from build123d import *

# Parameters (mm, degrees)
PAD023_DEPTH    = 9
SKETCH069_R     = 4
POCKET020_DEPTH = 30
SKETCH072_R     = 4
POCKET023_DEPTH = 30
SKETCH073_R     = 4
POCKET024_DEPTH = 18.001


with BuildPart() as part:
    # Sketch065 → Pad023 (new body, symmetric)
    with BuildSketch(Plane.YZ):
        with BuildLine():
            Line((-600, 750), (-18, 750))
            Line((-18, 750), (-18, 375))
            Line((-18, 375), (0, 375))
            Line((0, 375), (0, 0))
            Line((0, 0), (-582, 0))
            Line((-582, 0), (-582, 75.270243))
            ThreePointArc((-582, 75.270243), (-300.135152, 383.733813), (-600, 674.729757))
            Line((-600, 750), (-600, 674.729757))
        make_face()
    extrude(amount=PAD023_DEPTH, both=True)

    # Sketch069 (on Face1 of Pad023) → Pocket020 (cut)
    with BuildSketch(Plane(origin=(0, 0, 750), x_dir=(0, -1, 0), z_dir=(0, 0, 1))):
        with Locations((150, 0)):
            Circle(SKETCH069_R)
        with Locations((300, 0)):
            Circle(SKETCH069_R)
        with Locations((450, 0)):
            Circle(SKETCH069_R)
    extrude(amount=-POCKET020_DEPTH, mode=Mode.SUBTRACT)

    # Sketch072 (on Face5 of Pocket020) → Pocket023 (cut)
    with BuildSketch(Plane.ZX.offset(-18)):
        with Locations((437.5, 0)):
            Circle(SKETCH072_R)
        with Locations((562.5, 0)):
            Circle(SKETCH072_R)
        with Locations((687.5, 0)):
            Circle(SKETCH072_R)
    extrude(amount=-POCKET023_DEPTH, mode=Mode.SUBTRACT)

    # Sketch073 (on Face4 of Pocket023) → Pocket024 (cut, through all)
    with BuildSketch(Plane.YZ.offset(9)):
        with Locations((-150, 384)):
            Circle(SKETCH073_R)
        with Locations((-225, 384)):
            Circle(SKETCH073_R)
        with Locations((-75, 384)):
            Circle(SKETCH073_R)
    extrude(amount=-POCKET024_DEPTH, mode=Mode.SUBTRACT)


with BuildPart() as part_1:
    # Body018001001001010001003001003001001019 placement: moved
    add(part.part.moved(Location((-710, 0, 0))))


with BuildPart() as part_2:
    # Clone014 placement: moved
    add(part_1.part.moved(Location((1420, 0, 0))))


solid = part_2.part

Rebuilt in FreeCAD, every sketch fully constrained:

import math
import FreeCAD as App
import Part
import Sketcher
from FreeCAD import Vector
Q = App.Units.Quantity

doc = App.newDocument("Part")
params = doc.addObject("Spreadsheet::Sheet", "Params")
for row, (alias, value) in enumerate([
    ("sketch1_radius", "300 mm"),
    ("sketch1_width", "582 mm"),
    ("sketch1_width2", "18 mm"),
    ("sketch1_height", "375 mm"),
    ("pad1_length", "18 mm"),
    ("sketch2_diameter", "8 mm"),
    ("pocket1_length", "30 mm"),
    ("sketch3_diameter", "8 mm"),
    ("pocket2_length", "30 mm"),
    ("sketch4_diameter", "8 mm"),
], start=1):
    params.set(f"A{row}", alias)
    params.set(f"B{row}", "=" + value)
    params.setAlias(f"B{row}", alias)

body = doc.addObject("PartDesign::Body", "Body")

# Sketch on YZ plane
sketch1 = body.newObject("Sketcher::SketchObject", "Sketch")
sketch1.AttachmentSupport = (doc.getObject("YZ_Plane"), [""])
sketch1.MapMode = "FlatFace"
sketch1.addGeometry(Part.LineSegment(Vector(-18, 750, 0), Vector(-600, 750, 0)), False)
sketch1.addGeometry(Part.LineSegment(Vector(-600, 750, 0), Vector(-600, 674.729757, 0)), False)
sketch1.addGeometry(Part.ArcOfCircle(Part.Circle(Vector(-600, 374.729757, 0), Vector(0, 0, 1), 300), math.radians(-86.560187), math.radians(90)), False)
sketch1.addGeometry(Part.LineSegment(Vector(-582, 75.270243, 0), Vector(-582, 0, 0)), False)
sketch1.addGeometry(Part.LineSegment(Vector(-582, 0, 0), Vector(0, 0, 0)), False)
sketch1.addGeometry(Part.LineSegment(Vector(0, 0, 0), Vector(0, 375, 0)), False)
sketch1.addGeometry(Part.LineSegment(Vector(0, 375, 0), Vector(-18, 375, 0)), False)
sketch1.addGeometry(Part.LineSegment(Vector(-18, 375, 0), Vector(-18, 750, 0)), False)
sketch1.addConstraint(Sketcher.Constraint("Coincident", 0, 2, 1, 1))
sketch1.addConstraint(Sketcher.Constraint("Coincident", 1, 2, 2, 2))
sketch1.addConstraint(Sketcher.Constraint("Coincident", 2, 1, 3, 1))
sketch1.addConstraint(Sketcher.Constraint("Coincident", 3, 2, 4, 1))
sketch1.addConstraint(Sketcher.Constraint("Coincident", 4, 2, 5, 1))
sketch1.addConstraint(Sketcher.Constraint("Coincident", 5, 2, 6, 1))
sketch1.addConstraint(Sketcher.Constraint("Coincident", 6, 2, 7, 1))
sketch1.addConstraint(Sketcher.Constraint("Coincident", 7, 2, 0, 1))
sketch1.addConstraint(Sketcher.Constraint("Horizontal", 0))
sketch1.addConstraint(Sketcher.Constraint("Vertical", 1))
sketch1.addConstraint(Sketcher.Constraint("Vertical", 3))
sketch1.addConstraint(Sketcher.Constraint("Horizontal", 4))
sketch1.addConstraint(Sketcher.Constraint("Vertical", 5))
sketch1.addConstraint(Sketcher.Constraint("Horizontal", 6))
sketch1.addConstraint(Sketcher.Constraint("Vertical", 7))
sketch1.addConstraint(Sketcher.Constraint("Coincident", 4, 2, -1, 1))
sketch1.addConstraint(Sketcher.Constraint("Vertical", 2, 3, 0, 2))
sketch1.addConstraint(Sketcher.Constraint("Equal", 0, 4))
sketch1.addConstraint(Sketcher.Constraint("Equal", 1, 3))
sketch1.addConstraint(Sketcher.Constraint("Equal", 5, 7))
sketch1.addConstraint(Sketcher.Constraint("Radius", 2, Q("300 mm")))
sketch1.addConstraint(Sketcher.Constraint("DistanceX", 0, 2, 0, 1, Q("582 mm")))
sketch1.addConstraint(Sketcher.Constraint("DistanceX", 6, 2, 6, 1, Q("18 mm")))
sketch1.addConstraint(Sketcher.Constraint("DistanceY", 5, 1, 5, 2, Q("375 mm")))
sketch1.setExpression("Constraints[20]", "Params.sketch1_radius")
sketch1.setExpression("Constraints[21]", "Params.sketch1_width")
sketch1.setExpression("Constraints[22]", "Params.sketch1_width2")
sketch1.setExpression("Constraints[23]", "Params.sketch1_height")
pad1 = body.newObject("PartDesign::Pad", "Pad")
pad1.Profile = sketch1
pad1.setExpression("Length", "Params.pad1_length")
pad1.Midplane = True

# Sketch on XY plane
sketch2 = body.newObject("Sketcher::SketchObject", "Sketch001")
sketch2.AttachmentSupport = (doc.getObject("XY_Plane"), [""])
sketch2.MapMode = "FlatFace"
sketch2.AttachmentOffset = App.Placement(Vector(0, 0, 750), App.Rotation())
sketch2.addGeometry(Part.Circle(Vector(0, -150, 0), Vector(0, 0, 1), 4), False)
sketch2.addGeometry(Part.Circle(Vector(0, -300, 0), Vector(0, 0, 1), 4), False)
sketch2.addGeometry(Part.Circle(Vector(0, -450, 0), Vector(0, 0, 1), 4), False)
sketch2.addConstraint(Sketcher.Constraint("Equal", 0, 1))
sketch2.addConstraint(Sketcher.Constraint("Equal", 1, 2))
sketch2.addConstraint(Sketcher.Constraint("PointOnObject", 0, 3, -2))
sketch2.addConstraint(Sketcher.Constraint("PointOnObject", 1, 3, -2))
sketch2.addConstraint(Sketcher.Constraint("PointOnObject", 2, 3, -2))
sketch2.addConstraint(Sketcher.Constraint("Diameter", 0, Q("8 mm")))
sketch2.addConstraint(Sketcher.Constraint("DistanceY", 0, 3, -1, 1, Q("150 mm")))
sketch2.addConstraint(Sketcher.Constraint("DistanceY", 1, 3, -1, 1, Q("300 mm")))
sketch2.addConstraint(Sketcher.Constraint("DistanceY", 2, 3, -1, 1, Q("450 mm")))
sketch2.setExpression("Constraints[5]", "Params.sketch2_diameter")
pocket1 = body.newObject("PartDesign::Pocket", "Pocket")
pocket1.Profile = sketch2
pocket1.setExpression("Length", "Params.pocket1_length")

# Sketch on XZ plane
sketch3 = body.newObject("Sketcher::SketchObject", "Sketch002")
sketch3.AttachmentSupport = (doc.getObject("XZ_Plane"), [""])
sketch3.MapMode = "FlatFace"
sketch3.AttachmentOffset = App.Placement(Vector(0, 0, 18), App.Rotation())
sketch3.addGeometry(Part.Circle(Vector(0, 437.5, 0), Vector(0, 0, 1), 4), False)
sketch3.addGeometry(Part.Circle(Vector(0, 562.5, 0), Vector(0, 0, 1), 4), False)
sketch3.addGeometry(Part.Circle(Vector(0, 687.5, 0), Vector(0, 0, 1), 4), False)
sketch3.addConstraint(Sketcher.Constraint("Equal", 0, 1))
sketch3.addConstraint(Sketcher.Constraint("Equal", 1, 2))
sketch3.addConstraint(Sketcher.Constraint("PointOnObject", 0, 3, -2))
sketch3.addConstraint(Sketcher.Constraint("PointOnObject", 1, 3, -2))
sketch3.addConstraint(Sketcher.Constraint("PointOnObject", 2, 3, -2))
sketch3.addConstraint(Sketcher.Constraint("Diameter", 0, Q("8 mm")))
sketch3.addConstraint(Sketcher.Constraint("DistanceY", 0, 3, 1, 3, Q("125 mm")))
sketch3.addConstraint(Sketcher.Constraint("DistanceY", 1, 3, 2, 3, Q("125 mm")))
sketch3.addConstraint(Sketcher.Constraint("DistanceY", -1, 1, 0, 3, Q("437.5 mm")))
sketch3.setExpression("Constraints[5]", "Params.sketch3_diameter")
pocket2 = body.newObject("PartDesign::Pocket", "Pocket001")
pocket2.Profile = sketch3
pocket2.setExpression("Length", "Params.pocket2_length")
pocket2.Reversed = True

# Sketch on YZ plane
sketch4 = body.newObject("Sketcher::SketchObject", "Sketch003")
sketch4.AttachmentSupport = (doc.getObject("YZ_Plane"), [""])
sketch4.MapMode = "FlatFace"
sketch4.AttachmentOffset = App.Placement(Vector(0, 0, 9), App.Rotation())
sketch4.addGeometry(Part.Circle(Vector(-150, 384, 0), Vector(0, 0, 1), 4), False)
sketch4.addGeometry(Part.Circle(Vector(-225, 384, 0), Vector(0, 0, 1), 4), False)
sketch4.addGeometry(Part.Circle(Vector(-75, 384, 0), Vector(0, 0, 1), 4), False)
sketch4.addConstraint(Sketcher.Constraint("Equal", 0, 1))
sketch4.addConstraint(Sketcher.Constraint("Equal", 1, 2))
sketch4.addConstraint(Sketcher.Constraint("Horizontal", 0, 3, 1, 3))
sketch4.addConstraint(Sketcher.Constraint("Horizontal", 1, 3, 2, 3))
sketch4.addConstraint(Sketcher.Constraint("Diameter", 0, Q("8 mm")))
sketch4.addConstraint(Sketcher.Constraint("DistanceX", 0, 3, -1, 1, Q("150 mm")))
sketch4.addConstraint(Sketcher.Constraint("DistanceY", -1, 1, 0, 3, Q("384 mm")))
sketch4.addConstraint(Sketcher.Constraint("DistanceX", 1, 3, -1, 1, Q("225 mm")))
sketch4.addConstraint(Sketcher.Constraint("DistanceX", 2, 3, -1, 1, Q("75 mm")))
sketch4.setExpression("Constraints[4]", "Params.sketch4_diameter")
pocket3 = body.newObject("PartDesign::Pocket", "Pocket002")
pocket3.Profile = sketch4
pocket3.Type = "ThroughAll"
body2 = doc.addObject("PartDesign::Body", "Body001")
doc.recompute()

body.Placement = App.Placement(Vector(-710, 0, 0), App.Rotation(Vector(0, 0, 1), 0))
boolean = body2.newObject("PartDesign::Boolean", "Boolean")
boolean.Type = "Fuse"
boolean.addObjects([body])
body3 = doc.addObject("PartDesign::Body", "Body002")
doc.recompute()

body2.Placement = App.Placement(Vector(1420, 0, 0), App.Rotation(Vector(0, 0, 1), 0))
boolean2 = body3.newObject("PartDesign::Boolean", "Boolean001")
boolean2.Type = "Fuse"
boolean2.addObjects([body2])

doc.recompute()
